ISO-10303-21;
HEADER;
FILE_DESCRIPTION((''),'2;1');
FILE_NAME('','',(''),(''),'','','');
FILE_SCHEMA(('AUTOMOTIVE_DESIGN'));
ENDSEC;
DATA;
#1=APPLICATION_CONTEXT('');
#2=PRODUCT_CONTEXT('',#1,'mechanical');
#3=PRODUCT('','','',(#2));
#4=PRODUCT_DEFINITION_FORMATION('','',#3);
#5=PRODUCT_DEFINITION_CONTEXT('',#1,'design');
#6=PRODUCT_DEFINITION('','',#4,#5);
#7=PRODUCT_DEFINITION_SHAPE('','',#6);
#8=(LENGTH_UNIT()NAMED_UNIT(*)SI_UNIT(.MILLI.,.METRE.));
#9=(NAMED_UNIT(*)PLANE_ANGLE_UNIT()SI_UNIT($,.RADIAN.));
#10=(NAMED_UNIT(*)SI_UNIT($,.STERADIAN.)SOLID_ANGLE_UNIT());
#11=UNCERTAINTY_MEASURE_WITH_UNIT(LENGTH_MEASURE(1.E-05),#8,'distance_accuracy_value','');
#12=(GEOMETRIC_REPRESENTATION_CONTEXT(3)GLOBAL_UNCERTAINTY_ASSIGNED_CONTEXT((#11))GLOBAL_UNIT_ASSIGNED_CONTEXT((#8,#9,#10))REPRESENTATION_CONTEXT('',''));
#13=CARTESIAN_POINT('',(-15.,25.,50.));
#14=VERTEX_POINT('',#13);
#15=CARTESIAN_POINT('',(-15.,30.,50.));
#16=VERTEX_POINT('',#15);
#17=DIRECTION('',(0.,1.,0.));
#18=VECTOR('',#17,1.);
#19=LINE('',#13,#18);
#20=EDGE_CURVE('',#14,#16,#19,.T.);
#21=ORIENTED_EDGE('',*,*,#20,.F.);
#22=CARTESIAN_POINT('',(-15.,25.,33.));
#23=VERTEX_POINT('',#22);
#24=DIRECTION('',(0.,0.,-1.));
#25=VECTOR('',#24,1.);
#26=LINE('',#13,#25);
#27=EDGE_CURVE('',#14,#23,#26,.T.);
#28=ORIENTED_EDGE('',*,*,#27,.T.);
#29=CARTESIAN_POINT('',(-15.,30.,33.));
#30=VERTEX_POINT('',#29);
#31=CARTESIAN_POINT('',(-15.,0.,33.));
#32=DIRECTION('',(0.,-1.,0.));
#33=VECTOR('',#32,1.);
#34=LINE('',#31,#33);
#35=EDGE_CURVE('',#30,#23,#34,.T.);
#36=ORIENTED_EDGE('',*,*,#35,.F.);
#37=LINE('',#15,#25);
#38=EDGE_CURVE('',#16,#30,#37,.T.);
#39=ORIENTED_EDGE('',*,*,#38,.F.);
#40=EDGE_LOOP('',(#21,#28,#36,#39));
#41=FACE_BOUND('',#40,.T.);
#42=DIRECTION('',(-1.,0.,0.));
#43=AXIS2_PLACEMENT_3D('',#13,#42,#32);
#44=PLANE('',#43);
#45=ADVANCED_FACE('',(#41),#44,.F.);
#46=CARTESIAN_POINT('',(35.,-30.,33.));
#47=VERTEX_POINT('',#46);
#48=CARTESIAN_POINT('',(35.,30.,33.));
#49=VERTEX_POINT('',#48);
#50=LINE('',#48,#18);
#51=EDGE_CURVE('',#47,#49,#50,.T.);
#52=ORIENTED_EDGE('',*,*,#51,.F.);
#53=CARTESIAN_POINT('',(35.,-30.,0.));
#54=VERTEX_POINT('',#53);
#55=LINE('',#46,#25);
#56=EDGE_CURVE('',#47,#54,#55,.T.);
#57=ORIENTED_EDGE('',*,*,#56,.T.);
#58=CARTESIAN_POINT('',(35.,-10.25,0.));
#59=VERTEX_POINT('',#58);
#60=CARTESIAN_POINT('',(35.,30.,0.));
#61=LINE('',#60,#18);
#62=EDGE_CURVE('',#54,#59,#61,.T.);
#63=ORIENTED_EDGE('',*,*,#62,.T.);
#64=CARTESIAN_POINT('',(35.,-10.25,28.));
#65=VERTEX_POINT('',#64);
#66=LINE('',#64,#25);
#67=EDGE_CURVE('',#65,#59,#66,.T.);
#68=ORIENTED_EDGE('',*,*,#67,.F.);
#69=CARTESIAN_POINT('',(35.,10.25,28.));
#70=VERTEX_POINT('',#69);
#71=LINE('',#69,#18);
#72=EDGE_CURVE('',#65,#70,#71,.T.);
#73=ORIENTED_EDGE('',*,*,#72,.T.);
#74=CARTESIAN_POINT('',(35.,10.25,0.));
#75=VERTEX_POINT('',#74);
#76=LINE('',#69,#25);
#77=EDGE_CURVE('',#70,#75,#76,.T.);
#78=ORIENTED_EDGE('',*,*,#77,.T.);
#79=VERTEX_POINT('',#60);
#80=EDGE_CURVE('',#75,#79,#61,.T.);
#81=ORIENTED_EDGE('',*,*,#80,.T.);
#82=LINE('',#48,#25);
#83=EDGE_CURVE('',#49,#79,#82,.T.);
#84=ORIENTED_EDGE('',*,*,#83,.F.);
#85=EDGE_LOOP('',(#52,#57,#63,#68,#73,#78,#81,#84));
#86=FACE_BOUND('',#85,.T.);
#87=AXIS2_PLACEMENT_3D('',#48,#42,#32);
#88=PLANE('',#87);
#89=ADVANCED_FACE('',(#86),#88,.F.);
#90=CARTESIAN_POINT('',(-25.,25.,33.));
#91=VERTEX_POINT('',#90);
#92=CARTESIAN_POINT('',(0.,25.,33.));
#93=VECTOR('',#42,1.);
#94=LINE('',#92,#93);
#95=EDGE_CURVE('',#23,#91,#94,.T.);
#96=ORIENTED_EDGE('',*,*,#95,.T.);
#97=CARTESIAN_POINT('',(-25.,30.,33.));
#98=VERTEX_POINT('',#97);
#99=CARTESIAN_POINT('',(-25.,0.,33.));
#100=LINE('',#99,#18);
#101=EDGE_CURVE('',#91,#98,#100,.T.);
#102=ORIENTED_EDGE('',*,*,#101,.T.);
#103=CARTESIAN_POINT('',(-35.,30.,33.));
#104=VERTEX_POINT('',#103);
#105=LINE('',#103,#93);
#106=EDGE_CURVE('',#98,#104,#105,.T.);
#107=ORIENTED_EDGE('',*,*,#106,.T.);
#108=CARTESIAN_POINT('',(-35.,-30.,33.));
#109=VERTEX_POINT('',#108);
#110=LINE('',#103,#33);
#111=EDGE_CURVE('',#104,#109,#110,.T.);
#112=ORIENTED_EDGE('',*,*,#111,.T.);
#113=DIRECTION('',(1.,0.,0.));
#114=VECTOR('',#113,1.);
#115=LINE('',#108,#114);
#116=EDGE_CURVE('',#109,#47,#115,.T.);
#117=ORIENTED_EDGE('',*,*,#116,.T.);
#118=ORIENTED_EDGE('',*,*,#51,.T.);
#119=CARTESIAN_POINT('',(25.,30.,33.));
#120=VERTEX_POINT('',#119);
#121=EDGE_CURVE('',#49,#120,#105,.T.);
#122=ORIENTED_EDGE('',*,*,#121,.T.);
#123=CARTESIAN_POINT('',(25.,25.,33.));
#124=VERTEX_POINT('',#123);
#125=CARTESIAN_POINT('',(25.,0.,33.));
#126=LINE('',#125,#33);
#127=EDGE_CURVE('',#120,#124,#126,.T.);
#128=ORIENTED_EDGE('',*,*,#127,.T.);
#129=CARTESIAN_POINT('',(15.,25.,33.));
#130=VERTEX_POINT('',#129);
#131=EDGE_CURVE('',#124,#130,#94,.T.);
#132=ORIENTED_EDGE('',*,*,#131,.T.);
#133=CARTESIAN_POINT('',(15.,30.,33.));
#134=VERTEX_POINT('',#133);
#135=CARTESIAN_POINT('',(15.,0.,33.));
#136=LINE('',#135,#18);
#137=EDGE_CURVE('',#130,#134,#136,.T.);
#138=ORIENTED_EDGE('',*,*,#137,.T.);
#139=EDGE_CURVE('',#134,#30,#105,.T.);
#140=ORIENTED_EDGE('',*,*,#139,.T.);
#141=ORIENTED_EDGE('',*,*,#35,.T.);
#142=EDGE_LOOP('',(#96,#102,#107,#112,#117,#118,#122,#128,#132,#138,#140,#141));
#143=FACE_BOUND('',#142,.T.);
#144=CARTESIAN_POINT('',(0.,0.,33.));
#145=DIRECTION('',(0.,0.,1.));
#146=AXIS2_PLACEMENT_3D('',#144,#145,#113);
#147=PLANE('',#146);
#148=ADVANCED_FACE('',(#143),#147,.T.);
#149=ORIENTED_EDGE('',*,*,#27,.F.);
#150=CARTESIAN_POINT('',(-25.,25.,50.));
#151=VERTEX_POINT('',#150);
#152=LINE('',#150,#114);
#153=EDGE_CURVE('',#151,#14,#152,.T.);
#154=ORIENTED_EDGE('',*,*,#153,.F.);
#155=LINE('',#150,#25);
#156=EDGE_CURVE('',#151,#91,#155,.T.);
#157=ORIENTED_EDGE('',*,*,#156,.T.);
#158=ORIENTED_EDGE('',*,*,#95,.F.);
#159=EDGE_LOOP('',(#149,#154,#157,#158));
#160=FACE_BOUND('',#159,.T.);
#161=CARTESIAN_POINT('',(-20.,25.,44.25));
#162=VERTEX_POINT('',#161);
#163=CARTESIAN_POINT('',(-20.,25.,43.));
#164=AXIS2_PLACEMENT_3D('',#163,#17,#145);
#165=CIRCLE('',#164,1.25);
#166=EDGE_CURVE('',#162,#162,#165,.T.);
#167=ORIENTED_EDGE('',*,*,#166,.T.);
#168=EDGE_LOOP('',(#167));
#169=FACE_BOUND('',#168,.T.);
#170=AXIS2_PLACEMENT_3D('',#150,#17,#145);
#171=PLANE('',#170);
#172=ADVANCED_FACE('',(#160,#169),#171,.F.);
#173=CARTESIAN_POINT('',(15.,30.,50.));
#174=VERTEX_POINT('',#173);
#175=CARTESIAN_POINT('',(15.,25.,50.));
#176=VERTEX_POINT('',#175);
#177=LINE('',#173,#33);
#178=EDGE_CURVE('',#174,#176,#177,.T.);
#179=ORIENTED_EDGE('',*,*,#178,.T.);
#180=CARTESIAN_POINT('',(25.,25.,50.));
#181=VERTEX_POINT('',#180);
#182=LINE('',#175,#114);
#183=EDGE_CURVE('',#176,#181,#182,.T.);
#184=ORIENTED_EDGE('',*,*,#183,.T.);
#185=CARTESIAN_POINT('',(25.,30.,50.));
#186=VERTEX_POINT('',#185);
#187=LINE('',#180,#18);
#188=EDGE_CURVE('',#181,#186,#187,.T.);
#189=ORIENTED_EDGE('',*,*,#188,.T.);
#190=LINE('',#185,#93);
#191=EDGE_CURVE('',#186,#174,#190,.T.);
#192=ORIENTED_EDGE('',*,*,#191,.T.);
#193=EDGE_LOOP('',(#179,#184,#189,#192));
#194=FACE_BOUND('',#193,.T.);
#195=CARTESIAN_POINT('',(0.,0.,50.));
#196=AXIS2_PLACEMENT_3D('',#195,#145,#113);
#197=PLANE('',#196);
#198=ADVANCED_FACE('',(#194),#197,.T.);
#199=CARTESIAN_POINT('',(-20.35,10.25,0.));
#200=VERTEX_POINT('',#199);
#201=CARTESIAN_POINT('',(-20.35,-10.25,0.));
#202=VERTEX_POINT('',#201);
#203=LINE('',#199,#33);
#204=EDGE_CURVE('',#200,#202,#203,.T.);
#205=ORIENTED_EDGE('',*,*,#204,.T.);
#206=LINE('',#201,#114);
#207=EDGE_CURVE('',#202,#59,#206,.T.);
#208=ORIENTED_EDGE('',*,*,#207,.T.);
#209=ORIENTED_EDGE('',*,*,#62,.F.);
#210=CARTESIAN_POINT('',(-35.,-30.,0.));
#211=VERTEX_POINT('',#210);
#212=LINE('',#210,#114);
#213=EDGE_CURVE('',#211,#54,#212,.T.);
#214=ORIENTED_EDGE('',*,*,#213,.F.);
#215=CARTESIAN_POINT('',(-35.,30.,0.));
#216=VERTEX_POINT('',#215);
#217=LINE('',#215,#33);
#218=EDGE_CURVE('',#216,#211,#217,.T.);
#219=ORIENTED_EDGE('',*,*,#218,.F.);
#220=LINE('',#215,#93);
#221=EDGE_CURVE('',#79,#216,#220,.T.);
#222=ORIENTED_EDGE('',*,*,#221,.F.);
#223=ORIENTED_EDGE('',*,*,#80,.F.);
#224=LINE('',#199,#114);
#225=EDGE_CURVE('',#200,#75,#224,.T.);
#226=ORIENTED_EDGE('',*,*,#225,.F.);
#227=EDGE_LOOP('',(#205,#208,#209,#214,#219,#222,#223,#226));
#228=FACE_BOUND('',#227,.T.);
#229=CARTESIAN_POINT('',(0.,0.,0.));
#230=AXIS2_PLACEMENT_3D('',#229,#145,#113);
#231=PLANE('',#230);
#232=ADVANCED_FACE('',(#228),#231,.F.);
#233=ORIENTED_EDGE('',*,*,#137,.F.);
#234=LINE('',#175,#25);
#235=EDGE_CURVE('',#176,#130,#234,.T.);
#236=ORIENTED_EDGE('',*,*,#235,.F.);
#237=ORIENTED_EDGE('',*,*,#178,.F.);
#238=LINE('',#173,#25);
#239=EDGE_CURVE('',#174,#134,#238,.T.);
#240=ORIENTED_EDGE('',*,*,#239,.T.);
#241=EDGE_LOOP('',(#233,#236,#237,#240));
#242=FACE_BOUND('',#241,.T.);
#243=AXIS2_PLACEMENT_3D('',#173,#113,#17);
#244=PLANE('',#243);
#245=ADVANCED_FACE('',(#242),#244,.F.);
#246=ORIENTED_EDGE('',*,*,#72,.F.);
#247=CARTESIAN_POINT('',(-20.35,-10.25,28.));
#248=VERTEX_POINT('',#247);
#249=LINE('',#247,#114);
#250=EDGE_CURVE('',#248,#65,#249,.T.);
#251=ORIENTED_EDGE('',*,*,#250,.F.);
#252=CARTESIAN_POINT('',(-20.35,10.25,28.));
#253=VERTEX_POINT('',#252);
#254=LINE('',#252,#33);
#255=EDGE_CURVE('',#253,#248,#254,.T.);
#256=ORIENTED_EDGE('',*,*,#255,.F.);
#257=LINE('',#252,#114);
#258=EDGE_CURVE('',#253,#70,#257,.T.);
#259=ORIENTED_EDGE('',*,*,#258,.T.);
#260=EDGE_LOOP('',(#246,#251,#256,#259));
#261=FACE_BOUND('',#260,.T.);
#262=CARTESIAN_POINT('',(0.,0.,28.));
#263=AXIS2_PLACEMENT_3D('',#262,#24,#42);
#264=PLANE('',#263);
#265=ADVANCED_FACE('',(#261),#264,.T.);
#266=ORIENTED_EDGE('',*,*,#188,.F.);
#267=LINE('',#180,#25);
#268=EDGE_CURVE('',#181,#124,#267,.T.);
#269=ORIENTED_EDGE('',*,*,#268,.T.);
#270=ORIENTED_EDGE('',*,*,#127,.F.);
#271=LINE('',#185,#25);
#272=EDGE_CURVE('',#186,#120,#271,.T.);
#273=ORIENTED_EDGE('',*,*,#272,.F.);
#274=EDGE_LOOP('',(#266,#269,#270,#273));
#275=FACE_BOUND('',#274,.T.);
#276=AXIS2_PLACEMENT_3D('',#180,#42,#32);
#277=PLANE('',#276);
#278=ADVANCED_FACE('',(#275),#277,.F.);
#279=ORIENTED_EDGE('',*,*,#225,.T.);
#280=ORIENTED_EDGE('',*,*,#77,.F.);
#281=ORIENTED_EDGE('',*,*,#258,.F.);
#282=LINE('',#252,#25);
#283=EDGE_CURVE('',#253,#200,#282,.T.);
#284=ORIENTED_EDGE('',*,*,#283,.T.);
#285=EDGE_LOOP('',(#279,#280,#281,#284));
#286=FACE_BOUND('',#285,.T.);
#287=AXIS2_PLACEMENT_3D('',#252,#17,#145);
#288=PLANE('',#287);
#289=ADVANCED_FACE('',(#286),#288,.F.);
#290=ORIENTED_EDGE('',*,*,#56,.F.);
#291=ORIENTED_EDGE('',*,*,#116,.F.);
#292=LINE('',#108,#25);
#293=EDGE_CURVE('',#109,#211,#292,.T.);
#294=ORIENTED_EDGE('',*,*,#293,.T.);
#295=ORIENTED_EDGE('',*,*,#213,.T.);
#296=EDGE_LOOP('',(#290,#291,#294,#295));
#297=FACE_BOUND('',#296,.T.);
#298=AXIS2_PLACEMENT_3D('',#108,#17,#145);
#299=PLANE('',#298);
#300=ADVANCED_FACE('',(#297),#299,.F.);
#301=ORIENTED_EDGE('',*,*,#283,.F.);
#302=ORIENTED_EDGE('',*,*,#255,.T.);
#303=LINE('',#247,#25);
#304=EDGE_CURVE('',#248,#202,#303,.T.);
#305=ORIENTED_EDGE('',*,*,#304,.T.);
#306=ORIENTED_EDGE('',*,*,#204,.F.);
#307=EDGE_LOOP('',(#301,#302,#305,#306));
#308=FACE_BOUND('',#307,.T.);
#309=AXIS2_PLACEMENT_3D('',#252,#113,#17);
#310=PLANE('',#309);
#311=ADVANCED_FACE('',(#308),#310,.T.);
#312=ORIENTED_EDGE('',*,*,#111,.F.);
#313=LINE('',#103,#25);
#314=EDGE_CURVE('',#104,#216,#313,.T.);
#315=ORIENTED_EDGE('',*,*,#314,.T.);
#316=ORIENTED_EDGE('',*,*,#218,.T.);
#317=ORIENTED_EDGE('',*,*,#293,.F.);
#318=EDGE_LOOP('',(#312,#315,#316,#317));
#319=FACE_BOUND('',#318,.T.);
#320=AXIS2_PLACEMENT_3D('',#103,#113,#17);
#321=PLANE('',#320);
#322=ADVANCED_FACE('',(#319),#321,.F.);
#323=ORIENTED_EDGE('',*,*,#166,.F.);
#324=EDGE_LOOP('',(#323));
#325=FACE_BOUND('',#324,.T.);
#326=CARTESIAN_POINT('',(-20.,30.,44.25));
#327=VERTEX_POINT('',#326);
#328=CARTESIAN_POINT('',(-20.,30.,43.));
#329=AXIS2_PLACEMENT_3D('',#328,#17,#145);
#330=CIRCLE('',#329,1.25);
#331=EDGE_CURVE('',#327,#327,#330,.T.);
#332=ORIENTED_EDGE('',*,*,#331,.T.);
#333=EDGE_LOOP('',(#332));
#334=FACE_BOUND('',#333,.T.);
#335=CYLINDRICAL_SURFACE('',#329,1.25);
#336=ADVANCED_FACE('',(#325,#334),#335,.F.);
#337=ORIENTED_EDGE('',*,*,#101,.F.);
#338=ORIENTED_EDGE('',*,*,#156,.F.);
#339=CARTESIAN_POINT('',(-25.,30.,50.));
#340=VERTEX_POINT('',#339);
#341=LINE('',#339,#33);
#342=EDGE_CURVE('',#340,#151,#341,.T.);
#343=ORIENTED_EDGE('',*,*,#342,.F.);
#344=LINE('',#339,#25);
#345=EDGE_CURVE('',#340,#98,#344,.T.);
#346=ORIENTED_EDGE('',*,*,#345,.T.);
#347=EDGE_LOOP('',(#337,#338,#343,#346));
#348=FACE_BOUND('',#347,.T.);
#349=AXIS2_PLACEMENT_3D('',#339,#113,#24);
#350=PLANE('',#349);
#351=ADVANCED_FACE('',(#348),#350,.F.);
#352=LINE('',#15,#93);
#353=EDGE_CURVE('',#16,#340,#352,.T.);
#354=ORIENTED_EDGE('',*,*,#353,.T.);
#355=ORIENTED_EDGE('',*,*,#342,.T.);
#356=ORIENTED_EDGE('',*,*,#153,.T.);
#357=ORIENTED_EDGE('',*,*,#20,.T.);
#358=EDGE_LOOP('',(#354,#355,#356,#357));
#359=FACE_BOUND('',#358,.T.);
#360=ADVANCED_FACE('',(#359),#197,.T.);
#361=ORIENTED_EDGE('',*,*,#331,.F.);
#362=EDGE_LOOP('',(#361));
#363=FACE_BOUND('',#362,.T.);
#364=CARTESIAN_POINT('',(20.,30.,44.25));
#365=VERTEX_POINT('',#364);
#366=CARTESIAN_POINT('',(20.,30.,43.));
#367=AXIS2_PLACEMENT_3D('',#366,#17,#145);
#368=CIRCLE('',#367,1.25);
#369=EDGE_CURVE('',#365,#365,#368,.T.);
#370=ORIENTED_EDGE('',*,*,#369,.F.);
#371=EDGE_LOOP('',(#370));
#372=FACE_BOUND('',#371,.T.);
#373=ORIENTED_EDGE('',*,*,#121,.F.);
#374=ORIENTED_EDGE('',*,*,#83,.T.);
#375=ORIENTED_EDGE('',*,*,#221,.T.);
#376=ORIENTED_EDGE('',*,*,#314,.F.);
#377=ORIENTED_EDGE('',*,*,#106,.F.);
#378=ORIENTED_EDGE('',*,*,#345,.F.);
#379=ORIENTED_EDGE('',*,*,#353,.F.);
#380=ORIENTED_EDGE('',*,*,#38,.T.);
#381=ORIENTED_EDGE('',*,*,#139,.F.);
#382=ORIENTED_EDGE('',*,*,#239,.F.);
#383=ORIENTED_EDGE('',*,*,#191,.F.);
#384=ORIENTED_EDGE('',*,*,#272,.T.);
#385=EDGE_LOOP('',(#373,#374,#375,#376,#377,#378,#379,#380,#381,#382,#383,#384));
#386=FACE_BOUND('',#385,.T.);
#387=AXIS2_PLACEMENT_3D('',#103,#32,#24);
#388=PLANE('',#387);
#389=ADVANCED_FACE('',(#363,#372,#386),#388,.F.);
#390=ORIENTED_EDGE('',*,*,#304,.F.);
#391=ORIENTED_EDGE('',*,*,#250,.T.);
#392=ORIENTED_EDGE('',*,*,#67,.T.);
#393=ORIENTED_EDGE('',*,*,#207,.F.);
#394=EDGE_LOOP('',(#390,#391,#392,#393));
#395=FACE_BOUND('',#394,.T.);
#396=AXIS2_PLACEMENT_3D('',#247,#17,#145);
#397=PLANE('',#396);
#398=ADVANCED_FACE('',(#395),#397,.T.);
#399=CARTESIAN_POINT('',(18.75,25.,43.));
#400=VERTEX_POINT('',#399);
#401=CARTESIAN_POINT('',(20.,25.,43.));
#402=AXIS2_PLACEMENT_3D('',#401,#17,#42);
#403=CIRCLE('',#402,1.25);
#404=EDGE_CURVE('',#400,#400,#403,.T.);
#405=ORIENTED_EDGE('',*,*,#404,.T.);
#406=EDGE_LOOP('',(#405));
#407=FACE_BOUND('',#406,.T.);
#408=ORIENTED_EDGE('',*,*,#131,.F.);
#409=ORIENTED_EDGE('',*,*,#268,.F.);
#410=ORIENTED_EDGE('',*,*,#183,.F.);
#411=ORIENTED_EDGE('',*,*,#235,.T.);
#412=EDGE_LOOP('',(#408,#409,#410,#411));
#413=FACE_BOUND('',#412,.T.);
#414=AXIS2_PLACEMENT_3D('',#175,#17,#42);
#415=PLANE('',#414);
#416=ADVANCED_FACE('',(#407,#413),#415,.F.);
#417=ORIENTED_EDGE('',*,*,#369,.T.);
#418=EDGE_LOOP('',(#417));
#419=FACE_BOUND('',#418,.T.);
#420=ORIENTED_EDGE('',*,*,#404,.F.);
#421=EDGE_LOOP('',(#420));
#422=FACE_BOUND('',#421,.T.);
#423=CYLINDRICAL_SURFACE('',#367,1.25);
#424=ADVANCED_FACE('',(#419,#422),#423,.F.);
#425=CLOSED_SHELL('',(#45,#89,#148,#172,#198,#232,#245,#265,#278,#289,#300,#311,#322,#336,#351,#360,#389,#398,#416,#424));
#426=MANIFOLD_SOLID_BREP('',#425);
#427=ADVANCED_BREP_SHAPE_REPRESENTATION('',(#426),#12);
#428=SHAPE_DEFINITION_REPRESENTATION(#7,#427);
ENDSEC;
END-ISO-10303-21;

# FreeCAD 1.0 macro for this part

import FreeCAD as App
import Part
import Sketcher
Q = App.Units.Quantity


def add_polygon(sketch, points):
    """Adds a closed chain of lines whose ends are joined by coincident constraints."""
    first, n = sketch.GeometryCount, len(points)
    for a, b in zip(points, points[1:] + points[:1]):
        sketch.addGeometry(Part.LineSegment(App.Vector(*a, 0), App.Vector(*b, 0)), False)
    for i in range(n):
        sketch.addConstraint(Sketcher.Constraint("Coincident", first + i, 2, first + (i + 1) % n, 1))

doc = App.newDocument("Part")
body = doc.addObject("PartDesign::Body", "Body")

sketch1 = body.newObject("Sketcher::SketchObject", "Sketch")
sketch1.AttachmentSupport = (doc.getObject("XY_Plane"), [""])
sketch1.MapMode = "FlatFace"
add_polygon(sketch1, [(-35, 30), (-35, -30), (35, -30), (35, 30)])
sketch1.addConstraint(Sketcher.Constraint("Vertical", 0))
sketch1.addConstraint(Sketcher.Constraint("Horizontal", 1))
sketch1.addConstraint(Sketcher.Constraint("Vertical", 2))
sketch1.addConstraint(Sketcher.Constraint("Horizontal", 3))
sketch1.addConstraint(Sketcher.Constraint("Symmetric", 0, 2, 2, 2, -1, 1))
sketch1.addConstraint(Sketcher.Constraint("DistanceX", 1, 1, 1, 2, Q("70 mm")))
sketch1.addConstraint(Sketcher.Constraint("DistanceY", 0, 2, 0, 1, Q("60 mm")))
pad1 = body.newObject("PartDesign::Pad", "Pad")
pad1.Profile = sketch1
pad1.Length = 33

sketch2 = body.newObject("Sketcher::SketchObject", "Sketch001")
sketch2.AttachmentSupport = (doc.getObject("XY_Plane"), [""])
sketch2.MapMode = "FlatFace"
add_polygon(sketch2, [(-20, 10), (-20, -10), (20, -10), (20, 10)])
sketch2.addConstraint(Sketcher.Constraint("Vertical", 0))
sketch2.addConstraint(Sketcher.Constraint("Horizontal", 1))
sketch2.addConstraint(Sketcher.Constraint("Vertical", 2))
sketch2.addConstraint(Sketcher.Constraint("Horizontal", 3))
sketch2.addConstraint(Sketcher.Constraint("Symmetric", 0, 2, 2, 2, -1, 1))
sketch2.addConstraint(Sketcher.Constraint("DistanceX", 1, 1, 1, 2, Q("40.7 mm")))
sketch2.addConstraint(Sketcher.Constraint("DistanceY", 0, 2, 0, 1, Q("20.5 mm")))
pocket1 = body.newObject("PartDesign::Pocket", "Pocket")
pocket1.Profile = sketch2
pocket1.Length = 28
pocket1.Reversed = True

sketch3 = body.newObject("Sketcher::SketchObject", "Sketch002")
sketch3.AttachmentSupport = (doc.getObject("XY_Plane"), [""])
sketch3.MapMode = "FlatFace"
add_polygon(sketch3, [(20, 10), (20, -10), (35, -10), (35, 10)])
sketch3.addConstraint(Sketcher.Constraint("Vertical", 0))
sketch3.addConstraint(Sketcher.Constraint("Horizontal", 1))
sketch3.addConstraint(Sketcher.Constraint("Vertical", 2))
sketch3.addConstraint(Sketcher.Constraint("Horizontal", 3))
sketch3.addConstraint(Sketcher.Constraint("DistanceY", 0, 2, 0, 1, Q("20.5 mm")))
sketch3.addConstraint(Sketcher.Constraint("DistanceX", -1, 1, 1, 2, Q("35 mm")))
sketch3.addConstraint(Sketcher.Constraint("DistanceX", 1, 1, 1, 2, Q("14.65 mm")))
sketch3.addConstraint(Sketcher.Constraint("DistanceY", 0, 2, -1, 1, Q("10.25 mm")))
pad2 = body.newObject("PartDesign::Pad", "Pad001")
pad2.Profile = sketch3
pad2.Length = 28

sketch4 = body.newObject("Sketcher::SketchObject", "Sketch003")
sketch4.AttachmentSupport = (doc.getObject("XY_Plane"), [""])
sketch4.MapMode = "FlatFace"
add_polygon(sketch4, [(20, 10), (20, -10), (35, -10), (35, 10)])
sketch4.addConstraint(Sketcher.Constraint("Vertical", 0))
sketch4.addConstraint(Sketcher.Constraint("Horizontal", 1))
sketch4.addConstraint(Sketcher.Constraint("Vertical", 2))
sketch4.addConstraint(Sketcher.Constraint("Horizontal", 3))
sketch4.addConstraint(Sketcher.Constraint("DistanceY", 0, 2, 0, 1, Q("20.5 mm")))
sketch4.addConstraint(Sketcher.Constraint("DistanceX", -1, 1, 1, 2, Q("35 mm")))
sketch4.addConstraint(Sketcher.Constraint("DistanceX", 1, 1, 1, 2, Q("14.65 mm")))
sketch4.addConstraint(Sketcher.Constraint("DistanceY", 0, 2, -1, 1, Q("10.25 mm")))
pocket2 = body.newObject("PartDesign::Pocket", "Pocket001")
pocket2.Profile = sketch4
pocket2.Length = 28
pocket2.Reversed = True

sketch5 = body.newObject("Sketcher::SketchObject", "Sketch004")
sketch5.AttachmentSupport = (doc.getObject("XY_Plane"), [""])
sketch5.MapMode = "FlatFace"
add_polygon(sketch5, [(-25, 30), (-25, 25), (-15, 25), (-15, 30)])
add_polygon(sketch5, [(15, 30), (15, 25), (25, 25), (25, 30)])
sketch5.addConstraint(Sketcher.Constraint("Vertical", 0))
sketch5.addConstraint(Sketcher.Constraint("Horizontal", 1))
sketch5.addConstraint(Sketcher.Constraint("Vertical", 2))
sketch5.addConstraint(Sketcher.Constraint("Horizontal", 3))
sketch5.addConstraint(Sketcher.Constraint("Vertical", 4))
sketch5.addConstraint(Sketcher.Constraint("Horizontal", 5))
sketch5.addConstraint(Sketcher.Constraint("Vertical", 6))
sketch5.addConstraint(Sketcher.Constraint("Horizontal", 7))
sketch5.addConstraint(Sketcher.Constraint("Symmetric", 1, 2, 4, 2, -2))
sketch5.addConstraint(Sketcher.Constraint("Symmetric", 3, 2, 6, 2, -2))
sketch5.addConstraint(Sketcher.Constraint("DistanceX", 1, 1, 1, 2, Q("10 mm")))
sketch5.addConstraint(Sketcher.Constraint("DistanceY", 0, 2, 0, 1, Q("5 mm")))
sketch5.addConstraint(Sketcher.Constraint("DistanceX", 0, 2, -1, 1, Q("25 mm")))
sketch5.addConstraint(Sketcher.Constraint("DistanceY", -1, 1, 0, 2, Q("25 mm")))
pad3 = body.newObject("PartDesign::Pad", "Pad002")
pad3.Profile = sketch5
pad3.Length = 50

sketch6 = body.newObject("Sketcher::SketchObject", "Sketch005")
sketch6.AttachmentSupport = (doc.getObject("XZ_Plane"), [""])
sketch6.MapMode = "FlatFace"
sketch6.AttachmentOffset = App.Placement(App.Vector(0, 0, -30), App.Rotation())
sketch6.addGeometry(Part.Circle(App.Vector(-20, 43, 0), App.Vector(0, 0, 1), 1.2), False)
sketch6.addGeometry(Part.Circle(App.Vector(20, 43, 0), App.Vector(0, 0, 1), 1.2), False)
sketch6.addConstraint(Sketcher.Constraint("Equal", 0, 1))
sketch6.addConstraint(Sketcher.Constraint("Symmetric", 0, 3, 1, 3, -2))
sketch6.addConstraint(Sketcher.Constraint("Diameter", 0, Q("2.5 mm")))
sketch6.addConstraint(Sketcher.Constraint("DistanceX", 0, 3, -1, 1, Q("20 mm")))
sketch6.addConstraint(Sketcher.Constraint("DistanceY", -1, 1, 0, 3, Q("43 mm")))
doc.recompute()
hole = body.newObject("PartDesign::Hole", "Hole")
hole.Profile = sketch6
hole.ThreadType = "None"
hole.Diameter = 2.5
hole.DepthType = "ThroughAll"
hole.Reversed = True

doc.recompute()
